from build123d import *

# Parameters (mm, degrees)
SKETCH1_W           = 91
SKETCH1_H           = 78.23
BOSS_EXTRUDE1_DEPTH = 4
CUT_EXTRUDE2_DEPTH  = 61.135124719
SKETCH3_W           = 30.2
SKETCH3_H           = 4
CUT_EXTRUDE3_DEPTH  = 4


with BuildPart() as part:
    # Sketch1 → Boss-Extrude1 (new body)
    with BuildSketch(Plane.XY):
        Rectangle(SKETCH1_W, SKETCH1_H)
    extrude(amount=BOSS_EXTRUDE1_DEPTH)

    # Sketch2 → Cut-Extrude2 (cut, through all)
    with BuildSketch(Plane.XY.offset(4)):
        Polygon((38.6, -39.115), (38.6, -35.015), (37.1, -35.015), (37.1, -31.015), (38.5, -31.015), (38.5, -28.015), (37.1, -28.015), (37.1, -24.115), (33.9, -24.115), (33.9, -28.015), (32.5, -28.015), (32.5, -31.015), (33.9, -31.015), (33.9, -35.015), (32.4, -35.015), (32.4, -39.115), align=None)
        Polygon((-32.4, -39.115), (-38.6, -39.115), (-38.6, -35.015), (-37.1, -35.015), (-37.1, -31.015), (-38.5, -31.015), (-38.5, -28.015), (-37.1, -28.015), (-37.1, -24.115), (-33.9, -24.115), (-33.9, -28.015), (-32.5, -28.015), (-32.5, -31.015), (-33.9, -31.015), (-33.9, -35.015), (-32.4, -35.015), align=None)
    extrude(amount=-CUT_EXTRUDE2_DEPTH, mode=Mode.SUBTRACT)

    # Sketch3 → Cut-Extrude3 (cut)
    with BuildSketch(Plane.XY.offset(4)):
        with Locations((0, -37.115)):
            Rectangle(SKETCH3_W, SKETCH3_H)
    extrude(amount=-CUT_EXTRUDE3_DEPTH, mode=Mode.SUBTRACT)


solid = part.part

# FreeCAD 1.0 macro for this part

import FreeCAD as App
import Part
import Sketcher


def add_polygon(sketch, points):
    """Adds a closed chain of lines whose ends are joined by coincident constraints."""
    first, n = sketch.GeometryCount, len(points)
    for a, b in zip(points, points[1:] + points[:1]):
        sketch.addGeometry(Part.LineSegment(App.Vector(*a, 0), App.Vector(*b, 0)), False)
    for i in range(n):
        sketch.addConstraint(Sketcher.Constraint("Coincident", first + i, 2, first + (i + 1) % n, 1))

doc = App.newDocument("Part")
params = doc.addObject("Spreadsheet::Sheet", "Params")
for row, (alias, value) in enumerate([
    ("sketch1_width", "91 mm"),
    ("sketch1_height", "78.23 mm"),
    ("pad1_length", "4 mm"),
    ("sketch2_height", "4 mm"),
    ("sketch2_height2", "3 mm"),
    ("sketch2_width", "1.5 mm"),
    ("sketch2_width2", "1.4 mm"),
    ("sketch2_width3", "3.2 mm"),
    ("sketch3_height", "4 mm"),
    ("sketch3_width", "30.2 mm"),
    ("pocket2_length", "4 mm"),
], start=1):
    params.set(f"A{row}", alias)
    params.set(f"B{row}", "=" + value)
    params.setAlias(f"B{row}", alias)

body = doc.addObject("PartDesign::Body", "Body")

sketch1 = body.newObject("Sketcher::SketchObject", "Sketch")
sketch1.AttachmentSupport = (doc.getObject("XY_Plane"), [""])
sketch1.MapMode = "FlatFace"
add_polygon(sketch1, [(-45.5, 39.115), (-45.5, -39.115), (45.5, -39.115), (45.5, 39.115)])
sketch1.addConstraint(Sketcher.Constraint("Vertical", 0))
sketch1.addConstraint(Sketcher.Constraint("Horizontal", 1))
sketch1.addConstraint(Sketcher.Constraint("Vertical", 2))
sketch1.addConstraint(Sketcher.Constraint("Horizontal", 3))
sketch1.addConstraint(Sketcher.Constraint("Symmetric", 0, 2, 2, 2, -1, 1))
sketch1.addConstraint(Sketcher.Constraint("DistanceX", 1, 1, 1, 2, 91.0))
sketch1.addConstraint(Sketcher.Constraint("DistanceY", 0, 2, 0, 1, 78.23))
sketch1.setExpression("Constraints[9]", "Params.sketch1_width")
sketch1.setExpression("Constraints[10]", "Params.sketch1_height")
pad1 = body.newObject("PartDesign::Pad", "Pad")
pad1.Profile = sketch1
pad1.setExpression("Length", "Params.pad1_length")

sketch2 = body.newObject("Sketcher::SketchObject", "Sketch001")
sketch2.AttachmentSupport = (doc.getObject("XY_Plane"), [""])
sketch2.MapMode = "FlatFace"
sketch2.AttachmentOffset = App.Placement(App.Vector(0, 0, 4), App.Rotation())
add_polygon(sketch2, [(38.6, -39.115), (38.6, -35.015), (37.1, -35.015), (37.1, -31.015), (38.5, -31.015), (38.5, -28.015), (37.1, -28.015), (37.1, -24.115), (33.9, -24.115), (33.9, -28.015), (32.5, -28.015), (32.5, -31.015), (33.9, -31.015), (33.9, -35.015), (32.4, -35.015), (32.4, -39.115)])
add_polygon(sketch2, [(-38.6, -39.115), (-32.4, -39.115), (-32.4, -35.015), (-33.9, -35.015), (-33.9, -31.015), (-32.5, -31.015), (-32.5, -28.015), (-33.9, -28.015), (-33.9, -24.115), (-37.1, -24.115), (-37.1, -28.015), (-38.5, -28.015), (-38.5, -31.015), (-37.1, -31.015), (-37.1, -35.015), (-38.6, -35.015)])
sketch2.addConstraint(Sketcher.Constraint("Vertical", 0))
sketch2.addConstraint(Sketcher.Constraint("Horizontal", 1))
sketch2.addConstraint(Sketcher.Constraint("Vertical", 2))
sketch2.addConstraint(Sketcher.Constraint("Horizontal", 3))
sketch2.addConstraint(Sketcher.Constraint("Vertical", 4))
sketch2.addConstraint(Sketcher.Constraint("Horizontal", 5))
sketch2.addConstraint(Sketcher.Constraint("Vertical", 6))
sketch2.addConstraint(Sketcher.Constraint("Horizontal", 7))
sketch2.addConstraint(Sketcher.Constraint("Vertical", 8))
sketch2.addConstraint(Sketcher.Constraint("Horizontal", 9))
sketch2.addConstraint(Sketcher.Constraint("Vertical", 10))
sketch2.addConstraint(Sketcher.Constraint("Horizontal", 11))
sketch2.addConstraint(Sketcher.Constraint("Vertical", 12))
sketch2.addConstraint(Sketcher.Constraint("Horizontal", 13))
sketch2.addConstraint(Sketcher.Constraint("Vertical", 14))
sketch2.addConstraint(Sketcher.Constraint("Horizontal", 15))
sketch2.addConstraint(Sketcher.Constraint("Horizontal", 16))
sketch2.addConstraint(Sketcher.Constraint("Vertical", 17))
sketch2.addConstraint(Sketcher.Constraint("Horizontal", 18))
sketch2.addConstraint(Sketcher.Constraint("Vertical", 19))
sketch2.addConstraint(Sketcher.Constraint("Horizontal", 20))
sketch2.addConstraint(Sketcher.Constraint("Vertical", 21))
sketch2.addConstraint(Sketcher.Constraint("Horizontal", 22))
sketch2.addConstraint(Sketcher.Constraint("Vertical", 23))
sketch2.addConstraint(Sketcher.Constraint("Horizontal", 24))
sketch2.addConstraint(Sketcher.Constraint("Vertical", 25))
sketch2.addConstraint(Sketcher.Constraint("Horizontal", 26))
sketch2.addConstraint(Sketcher.Constraint("Vertical", 27))
sketch2.addConstraint(Sketcher.Constraint("Horizontal", 28))
sketch2.addConstraint(Sketcher.Constraint("Vertical", 29))
sketch2.addConstraint(Sketcher.Constraint("Horizontal", 30))
sketch2.addConstraint(Sketcher.Constraint("Vertical", 31))
sketch2.addConstraint(Sketcher.Constraint("Symmetric", 14, 2, 16, 2, -2))
sketch2.addConstraint(Sketcher.Constraint("Symmetric", 12, 2, 18, 2, -2))
sketch2.addConstraint(Sketcher.Constraint("Symmetric", 10, 2, 20, 2, -2))
sketch2.addConstraint(Sketcher.Constraint("Symmetric", 8, 2, 22, 2, -2))
sketch2.addConstraint(Sketcher.Constraint("Symmetric", 6, 2, 24, 2, -2))
sketch2.addConstraint(Sketcher.Constraint("Symmetric", 4, 2, 26, 2, -2))
sketch2.addConstraint(Sketcher.Constraint("Symmetric", 2, 2, 28, 2, -2))
sketch2.addConstraint(Sketcher.Constraint("Symmetric", 0, 2, 30, 2, -2))
sketch2.addConstraint(Sketcher.Constraint("Horizontal", 5, 2, 8, 2))
sketch2.addConstraint(Sketcher.Constraint("Horizontal", 3, 2, 10, 2))
sketch2.addConstraint(Sketcher.Constraint("Horizontal", 1, 2, 12, 2))
sketch2.addConstraint(Sketcher.Constraint("Vertical", 2, 2, 5, 2))
sketch2.addConstraint(Sketcher.Constraint("Vertical", 8, 2, 11, 2))
sketch2.addConstraint(Sketcher.Constraint("Equal", 5, 9))
sketch2.addConstraint(Sketcher.Constraint("Equal", 1, 13))
sketch2.addConstraint(Sketcher.Constraint("DistanceY", 2, 1, 2, 2, 4.0))
sketch2.addConstraint(Sketcher.Constraint("DistanceY", 4, 1, 4, 2, 3.0))
sketch2.addConstraint(Sketcher.Constraint("DistanceX", 1, 2, 1, 1, 1.5))
sketch2.addConstraint(Sketcher.Constraint("DistanceX", 3, 1, 3, 2, 1.4))
sketch2.addConstraint(Sketcher.Constraint("DistanceX", 7, 2, 7, 1, 3.2))
sketch2.addConstraint(Sketcher.Constraint("DistanceY", 0, 1, 0, 2, 4.1))
sketch2.addConstraint(Sketcher.Constraint("DistanceY", 6, 1, 6, 2, 3.9))
sketch2.addConstraint(Sketcher.Constraint("DistanceX", 20, 2, 10, 2, 65.0))
sketch2.addConstraint(Sketcher.Constraint("DistanceY", 0, 2, -1, 1, 35.015))
sketch2.setExpression("Constraints[79]", "Params.sketch2_height")
sketch2.setExpression("Constraints[80]", "Params.sketch2_height2")
sketch2.setExpression("Constraints[81]", "Params.sketch2_width")
sketch2.setExpression("Constraints[82]", "Params.sketch2_width2")
sketch2.setExpression("Constraints[83]", "Params.sketch2_width3")
pocket1 = body.newObject("PartDesign::Pocket", "Pocket")
pocket1.Profile = sketch2
pocket1.Type = "ThroughAll"

sketch3 = body.newObject("Sketcher::SketchObject", "Sketch002")
sketch3.AttachmentSupport = (doc.getObject("XY_Plane"), [""])
sketch3.MapMode = "FlatFace"
sketch3.AttachmentOffset = App.Placement(App.Vector(0, 0, 4), App.Rotation())
add_polygon(sketch3, [(-15.1, -35.115), (-15.1, -39.115), (15.1, -39.115), (15.1, -35.115)])
sketch3.addConstraint(Sketcher.Constraint("Vertical", 0))
sketch3.addConstraint(Sketcher.Constraint("Horizontal", 1))
sketch3.addConstraint(Sketcher.Constraint("Vertical", 2))
sketch3.addConstraint(Sketcher.Constraint("Horizontal", 3))
sketch3.addConstraint(Sketcher.Constraint("DistanceY", 0, 2, 0, 1, 4.0))
sketch3.addConstraint(Sketcher.Constraint("DistanceX", 1, 1, 1, 2, 30.2))
sketch3.addConstraint(Sketcher.Constraint("DistanceX", 0, 2, -1, 1, 15.1))
sketch3.addConstraint(Sketcher.Constraint("DistanceY", 0, 2, -1, 1, 39.115))
sketch3.setExpression("Constraints[8]", "Params.sketch3_height")
sketch3.setExpression("Constraints[9]", "Params.sketch3_width")
pocket2 = body.newObject("PartDesign::Pocket", "Pocket001")
pocket2.Profile = sketch3
pocket2.setExpression("Length", "Params.pocket2_length")

doc.recompute()
